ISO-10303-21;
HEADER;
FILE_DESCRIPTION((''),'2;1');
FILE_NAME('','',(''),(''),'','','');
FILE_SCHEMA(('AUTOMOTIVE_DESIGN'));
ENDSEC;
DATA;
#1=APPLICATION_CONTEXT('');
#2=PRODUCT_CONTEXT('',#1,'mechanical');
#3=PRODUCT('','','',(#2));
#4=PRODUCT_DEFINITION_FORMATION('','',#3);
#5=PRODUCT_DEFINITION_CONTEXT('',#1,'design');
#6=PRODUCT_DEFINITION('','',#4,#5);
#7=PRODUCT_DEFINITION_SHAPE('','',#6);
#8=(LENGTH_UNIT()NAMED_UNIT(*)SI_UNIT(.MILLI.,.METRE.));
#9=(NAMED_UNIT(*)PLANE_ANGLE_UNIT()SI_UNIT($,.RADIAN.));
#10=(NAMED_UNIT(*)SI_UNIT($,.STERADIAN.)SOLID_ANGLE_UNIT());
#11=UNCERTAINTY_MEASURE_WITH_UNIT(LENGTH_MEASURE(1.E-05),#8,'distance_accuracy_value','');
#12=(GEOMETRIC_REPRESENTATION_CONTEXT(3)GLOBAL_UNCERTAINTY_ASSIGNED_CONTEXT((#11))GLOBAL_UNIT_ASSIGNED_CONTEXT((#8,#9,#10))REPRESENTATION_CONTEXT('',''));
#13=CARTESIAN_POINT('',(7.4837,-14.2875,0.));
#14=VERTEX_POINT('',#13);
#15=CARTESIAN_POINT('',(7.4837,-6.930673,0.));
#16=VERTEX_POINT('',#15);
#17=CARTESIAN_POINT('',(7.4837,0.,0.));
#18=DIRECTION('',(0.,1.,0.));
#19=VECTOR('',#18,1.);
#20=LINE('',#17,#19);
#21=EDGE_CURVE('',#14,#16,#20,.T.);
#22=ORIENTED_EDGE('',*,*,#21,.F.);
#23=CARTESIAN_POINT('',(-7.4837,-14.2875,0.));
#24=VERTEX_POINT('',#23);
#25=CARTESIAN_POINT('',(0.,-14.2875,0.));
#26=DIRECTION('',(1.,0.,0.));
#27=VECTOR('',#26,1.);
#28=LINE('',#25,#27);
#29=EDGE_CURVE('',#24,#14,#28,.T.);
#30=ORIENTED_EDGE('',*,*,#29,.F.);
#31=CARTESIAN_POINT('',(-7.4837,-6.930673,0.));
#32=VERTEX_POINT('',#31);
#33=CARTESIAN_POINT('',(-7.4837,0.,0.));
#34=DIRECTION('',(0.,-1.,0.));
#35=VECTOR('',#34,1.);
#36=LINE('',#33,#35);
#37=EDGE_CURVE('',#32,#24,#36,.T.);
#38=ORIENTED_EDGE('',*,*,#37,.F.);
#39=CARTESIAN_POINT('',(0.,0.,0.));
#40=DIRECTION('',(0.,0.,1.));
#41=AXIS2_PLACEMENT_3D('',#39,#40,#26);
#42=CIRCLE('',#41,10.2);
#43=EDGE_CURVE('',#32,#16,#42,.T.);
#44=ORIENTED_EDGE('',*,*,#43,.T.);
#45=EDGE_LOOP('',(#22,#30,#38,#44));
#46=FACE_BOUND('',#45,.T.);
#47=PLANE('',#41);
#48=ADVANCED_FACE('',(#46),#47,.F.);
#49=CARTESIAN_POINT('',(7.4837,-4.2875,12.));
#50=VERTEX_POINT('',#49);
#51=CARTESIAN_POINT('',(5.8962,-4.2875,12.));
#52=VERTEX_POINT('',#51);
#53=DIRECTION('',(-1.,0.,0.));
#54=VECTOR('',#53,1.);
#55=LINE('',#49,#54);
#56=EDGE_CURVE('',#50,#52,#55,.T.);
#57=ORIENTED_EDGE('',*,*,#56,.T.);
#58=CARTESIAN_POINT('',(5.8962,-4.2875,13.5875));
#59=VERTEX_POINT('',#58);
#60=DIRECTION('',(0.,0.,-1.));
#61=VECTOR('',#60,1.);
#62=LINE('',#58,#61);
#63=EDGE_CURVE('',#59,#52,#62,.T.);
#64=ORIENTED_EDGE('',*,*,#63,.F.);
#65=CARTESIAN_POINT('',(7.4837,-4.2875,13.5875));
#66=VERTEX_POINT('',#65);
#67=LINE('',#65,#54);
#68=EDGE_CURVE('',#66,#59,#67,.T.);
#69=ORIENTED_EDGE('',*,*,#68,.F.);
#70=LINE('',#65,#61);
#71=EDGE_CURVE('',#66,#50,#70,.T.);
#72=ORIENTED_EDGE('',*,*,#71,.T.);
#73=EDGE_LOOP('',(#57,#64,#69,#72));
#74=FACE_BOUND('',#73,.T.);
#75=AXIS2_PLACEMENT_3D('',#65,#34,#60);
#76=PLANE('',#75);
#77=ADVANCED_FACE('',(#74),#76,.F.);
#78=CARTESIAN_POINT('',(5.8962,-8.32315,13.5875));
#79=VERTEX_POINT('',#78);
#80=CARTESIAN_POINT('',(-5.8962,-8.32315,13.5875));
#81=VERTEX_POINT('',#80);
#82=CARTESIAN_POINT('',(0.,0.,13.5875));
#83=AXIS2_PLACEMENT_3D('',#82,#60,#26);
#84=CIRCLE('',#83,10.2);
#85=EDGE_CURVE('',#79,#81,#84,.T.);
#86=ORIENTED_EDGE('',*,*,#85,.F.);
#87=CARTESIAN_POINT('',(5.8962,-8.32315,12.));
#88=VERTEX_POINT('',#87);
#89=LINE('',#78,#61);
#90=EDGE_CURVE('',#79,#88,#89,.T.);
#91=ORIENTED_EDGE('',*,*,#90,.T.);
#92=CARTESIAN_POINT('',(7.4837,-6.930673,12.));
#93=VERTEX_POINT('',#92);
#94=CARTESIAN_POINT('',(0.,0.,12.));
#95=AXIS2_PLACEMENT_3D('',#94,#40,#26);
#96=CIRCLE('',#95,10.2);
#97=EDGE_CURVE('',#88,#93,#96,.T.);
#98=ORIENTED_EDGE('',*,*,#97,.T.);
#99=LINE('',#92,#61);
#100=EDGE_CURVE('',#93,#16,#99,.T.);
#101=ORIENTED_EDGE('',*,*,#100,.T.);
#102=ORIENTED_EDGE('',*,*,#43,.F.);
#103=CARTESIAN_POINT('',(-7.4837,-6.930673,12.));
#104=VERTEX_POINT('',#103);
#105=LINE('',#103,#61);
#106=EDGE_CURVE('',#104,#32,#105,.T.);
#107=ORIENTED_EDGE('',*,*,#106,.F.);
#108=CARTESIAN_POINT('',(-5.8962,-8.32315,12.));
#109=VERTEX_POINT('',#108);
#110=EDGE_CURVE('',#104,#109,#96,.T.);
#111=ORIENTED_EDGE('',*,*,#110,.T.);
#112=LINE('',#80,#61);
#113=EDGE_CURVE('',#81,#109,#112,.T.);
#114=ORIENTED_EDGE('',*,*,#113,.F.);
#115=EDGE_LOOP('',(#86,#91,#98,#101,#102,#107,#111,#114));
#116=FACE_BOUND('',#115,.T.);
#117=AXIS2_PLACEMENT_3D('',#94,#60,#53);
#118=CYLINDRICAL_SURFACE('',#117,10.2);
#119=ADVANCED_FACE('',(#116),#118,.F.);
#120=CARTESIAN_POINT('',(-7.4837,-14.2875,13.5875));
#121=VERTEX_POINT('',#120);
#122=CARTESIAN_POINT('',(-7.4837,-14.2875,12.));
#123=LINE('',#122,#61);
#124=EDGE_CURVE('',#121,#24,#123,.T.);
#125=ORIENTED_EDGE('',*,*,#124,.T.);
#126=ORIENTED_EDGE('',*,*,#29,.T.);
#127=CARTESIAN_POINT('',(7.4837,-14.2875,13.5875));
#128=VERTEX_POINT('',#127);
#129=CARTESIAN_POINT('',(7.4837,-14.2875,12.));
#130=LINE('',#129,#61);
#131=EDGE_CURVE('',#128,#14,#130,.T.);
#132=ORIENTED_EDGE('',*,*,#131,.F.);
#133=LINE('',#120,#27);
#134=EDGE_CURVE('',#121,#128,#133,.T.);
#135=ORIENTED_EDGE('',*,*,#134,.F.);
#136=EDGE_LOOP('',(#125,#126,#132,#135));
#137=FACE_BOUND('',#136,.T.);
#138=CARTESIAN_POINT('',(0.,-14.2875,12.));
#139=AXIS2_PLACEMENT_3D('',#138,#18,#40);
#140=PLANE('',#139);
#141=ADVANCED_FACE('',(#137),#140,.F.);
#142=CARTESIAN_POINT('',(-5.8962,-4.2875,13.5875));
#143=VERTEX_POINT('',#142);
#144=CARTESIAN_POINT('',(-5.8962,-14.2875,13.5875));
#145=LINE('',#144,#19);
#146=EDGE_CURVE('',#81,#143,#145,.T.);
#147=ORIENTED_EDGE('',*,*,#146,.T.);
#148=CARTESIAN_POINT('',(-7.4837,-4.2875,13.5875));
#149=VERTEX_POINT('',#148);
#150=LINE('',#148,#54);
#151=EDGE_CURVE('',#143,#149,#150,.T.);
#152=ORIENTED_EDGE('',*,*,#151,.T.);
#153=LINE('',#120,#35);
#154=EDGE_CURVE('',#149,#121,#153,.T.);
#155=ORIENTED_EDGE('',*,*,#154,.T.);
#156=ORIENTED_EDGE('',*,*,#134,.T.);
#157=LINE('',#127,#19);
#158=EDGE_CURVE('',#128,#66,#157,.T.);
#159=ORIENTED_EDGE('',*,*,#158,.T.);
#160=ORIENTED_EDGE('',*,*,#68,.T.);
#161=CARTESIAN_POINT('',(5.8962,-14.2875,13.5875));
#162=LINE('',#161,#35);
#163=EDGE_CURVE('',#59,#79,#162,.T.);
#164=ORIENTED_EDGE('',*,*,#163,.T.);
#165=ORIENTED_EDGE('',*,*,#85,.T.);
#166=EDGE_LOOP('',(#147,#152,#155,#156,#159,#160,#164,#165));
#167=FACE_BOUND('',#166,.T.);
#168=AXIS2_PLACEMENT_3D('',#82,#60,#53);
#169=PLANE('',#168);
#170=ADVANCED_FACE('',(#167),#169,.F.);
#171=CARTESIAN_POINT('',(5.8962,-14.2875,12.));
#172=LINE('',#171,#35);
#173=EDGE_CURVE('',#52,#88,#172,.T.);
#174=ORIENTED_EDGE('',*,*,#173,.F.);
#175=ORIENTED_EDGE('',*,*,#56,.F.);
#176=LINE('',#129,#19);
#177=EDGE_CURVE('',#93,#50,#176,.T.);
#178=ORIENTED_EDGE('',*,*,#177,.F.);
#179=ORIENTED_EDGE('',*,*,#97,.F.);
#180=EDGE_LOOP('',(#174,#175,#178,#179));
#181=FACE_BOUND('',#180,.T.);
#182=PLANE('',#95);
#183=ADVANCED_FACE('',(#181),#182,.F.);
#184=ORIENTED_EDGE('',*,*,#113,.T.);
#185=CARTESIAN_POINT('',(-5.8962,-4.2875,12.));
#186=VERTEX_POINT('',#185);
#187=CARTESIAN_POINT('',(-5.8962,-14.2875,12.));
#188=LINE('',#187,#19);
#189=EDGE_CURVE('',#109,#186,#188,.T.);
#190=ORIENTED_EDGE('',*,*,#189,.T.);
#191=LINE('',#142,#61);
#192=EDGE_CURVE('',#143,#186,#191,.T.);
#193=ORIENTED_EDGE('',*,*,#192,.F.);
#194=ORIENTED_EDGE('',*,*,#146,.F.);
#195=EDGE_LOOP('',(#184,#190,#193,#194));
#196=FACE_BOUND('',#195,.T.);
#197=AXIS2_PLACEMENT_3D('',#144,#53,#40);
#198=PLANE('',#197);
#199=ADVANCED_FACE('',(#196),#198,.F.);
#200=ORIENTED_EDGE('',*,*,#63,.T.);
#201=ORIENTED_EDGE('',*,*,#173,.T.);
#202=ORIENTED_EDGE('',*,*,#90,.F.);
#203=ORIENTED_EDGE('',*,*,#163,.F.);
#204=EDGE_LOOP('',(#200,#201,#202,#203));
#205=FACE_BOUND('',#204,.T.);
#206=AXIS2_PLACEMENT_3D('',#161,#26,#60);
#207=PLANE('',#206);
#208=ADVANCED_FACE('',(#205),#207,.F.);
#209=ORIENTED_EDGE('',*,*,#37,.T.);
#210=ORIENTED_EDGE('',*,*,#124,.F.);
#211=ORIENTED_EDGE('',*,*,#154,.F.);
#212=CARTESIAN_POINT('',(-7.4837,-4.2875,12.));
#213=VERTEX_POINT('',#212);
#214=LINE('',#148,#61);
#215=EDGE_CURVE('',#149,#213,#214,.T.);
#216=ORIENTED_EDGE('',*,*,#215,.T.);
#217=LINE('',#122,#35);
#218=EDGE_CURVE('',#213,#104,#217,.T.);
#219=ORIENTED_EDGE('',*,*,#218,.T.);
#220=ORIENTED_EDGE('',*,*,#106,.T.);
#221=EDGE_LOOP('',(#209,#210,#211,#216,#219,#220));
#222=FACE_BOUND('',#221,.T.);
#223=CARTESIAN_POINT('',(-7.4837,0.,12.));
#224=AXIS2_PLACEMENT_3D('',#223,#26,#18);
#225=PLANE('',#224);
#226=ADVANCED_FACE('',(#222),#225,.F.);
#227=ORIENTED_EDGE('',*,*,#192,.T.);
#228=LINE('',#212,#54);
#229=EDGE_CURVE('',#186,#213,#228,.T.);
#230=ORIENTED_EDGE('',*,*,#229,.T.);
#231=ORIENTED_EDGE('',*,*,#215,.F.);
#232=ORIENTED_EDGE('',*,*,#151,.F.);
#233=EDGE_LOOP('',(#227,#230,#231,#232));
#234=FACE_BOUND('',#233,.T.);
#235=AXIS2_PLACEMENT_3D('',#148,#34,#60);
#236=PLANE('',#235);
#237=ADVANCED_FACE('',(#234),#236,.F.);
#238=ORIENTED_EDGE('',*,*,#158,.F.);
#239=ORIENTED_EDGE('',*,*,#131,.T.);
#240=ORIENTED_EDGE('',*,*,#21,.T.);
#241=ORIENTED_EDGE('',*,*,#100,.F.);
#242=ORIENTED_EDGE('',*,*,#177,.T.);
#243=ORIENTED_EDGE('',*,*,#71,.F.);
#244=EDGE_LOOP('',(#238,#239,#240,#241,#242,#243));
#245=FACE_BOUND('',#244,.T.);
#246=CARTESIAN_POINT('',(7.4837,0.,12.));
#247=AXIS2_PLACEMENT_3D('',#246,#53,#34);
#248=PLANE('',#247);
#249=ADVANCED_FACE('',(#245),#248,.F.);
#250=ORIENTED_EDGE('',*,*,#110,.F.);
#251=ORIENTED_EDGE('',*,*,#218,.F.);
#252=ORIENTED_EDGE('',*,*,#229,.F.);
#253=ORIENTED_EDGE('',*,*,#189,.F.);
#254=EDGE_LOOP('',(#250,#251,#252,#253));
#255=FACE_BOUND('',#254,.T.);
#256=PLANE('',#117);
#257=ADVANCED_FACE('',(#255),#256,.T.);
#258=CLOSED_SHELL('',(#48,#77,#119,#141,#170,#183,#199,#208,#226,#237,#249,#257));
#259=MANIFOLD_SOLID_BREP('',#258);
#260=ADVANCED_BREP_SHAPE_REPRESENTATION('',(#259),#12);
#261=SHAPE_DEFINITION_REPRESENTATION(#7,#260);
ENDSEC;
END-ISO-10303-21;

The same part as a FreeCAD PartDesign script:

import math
import FreeCAD as App
import Part
import Sketcher

V = App.Vector

doc = App.newDocument("Part")
body = doc.addObject("PartDesign::Body", "Body")

# Sketch on XY plane
sketch1 = body.newObject("Sketcher::SketchObject", "Sketch")
sketch1.AttachmentSupport = (doc.getObject("XY_Plane"), [""])
sketch1.MapMode = "FlatFace"
sketch1.addGeometry([
    Part.ArcOfCircle(Part.Circle(V(0, 0, 0), V(0, 0, 1), 10), math.radians(-137), math.radians(-43)),
    Part.LineSegment(V(-7, -7, 0), V(-7, -14, 0)),
    Part.LineSegment(V(-7, -14, 0), V(7, -14, 0)),
    Part.LineSegment(V(7, -14, 0), V(7, -7, 0)),
], False)
sketch1.addConstraint([
    Sketcher.Constraint("Coincident", 0, 1, 1, 1),
    Sketcher.Constraint("Coincident", 1, 2, 2, 1),
    Sketcher.Constraint("Coincident", 2, 2, 3, 1),
    Sketcher.Constraint("Coincident", 3, 2, 0, 2),
    Sketcher.Constraint("Vertical", 1),
    Sketcher.Constraint("Horizontal", 2),
    Sketcher.Constraint("Vertical", 3),
    Sketcher.Constraint("Coincident", 0, 3, -1, 1),
    Sketcher.Constraint("Horizontal", 0, 1, 3, 2),
    Sketcher.Constraint("Radius", 0, 10.2),
    Sketcher.Constraint("DistanceX", 2, 1, 2, 2, 14.9674),
    Sketcher.Constraint("DistanceY", 1, 2, -1, 1, 14.2875),
])
pad1 = body.newObject("PartDesign::Pad", "Pad")
pad1.Profile = sketch1
pad1.Length = 12

# Sketch on XY plane
sketch2 = body.newObject("Sketcher::SketchObject", "Sketch001")
sketch2.AttachmentSupport = (doc.getObject("XY_Plane"), [""])
sketch2.MapMode = "FlatFace"
sketch2.AttachmentOffset = App.Placement(V(0, 0, 12), App.Rotation())
sketch2.addGeometry([
    Part.LineSegment(V(-7.5, -4.3, 0), V(-7.5, -14.3, 0)),  # 0
    Part.LineSegment(V(-7.5, -14.3, 0), V(-5.9, -14.3, 0)),  # 1
    Part.LineSegment(V(-5.9, -14.3, 0), V(-5.9, -4.3, 0)),  # 2
    Part.LineSegment(V(-5.9, -4.3, 0), V(-7.5, -4.3, 0)),  # 3
    Part.LineSegment(V(5.9, -4.3, 0), V(5.9, -14.3, 0)),  # 4
    Part.LineSegment(V(5.9, -14.3, 0), V(7.5, -14.3, 0)),  # 5
    Part.LineSegment(V(7.5, -14.3, 0), V(7.5, -4.3, 0)),  # 6
    Part.LineSegment(V(7.5, -4.3, 0), V(5.9, -4.3, 0)),  # 7
], False)
sketch2.addConstraint([
    Sketcher.Constraint("Coincident", 0, 2, 1, 1),
    Sketcher.Constraint("Coincident", 1, 2, 2, 1),
    Sketcher.Constraint("Coincident", 2, 2, 3, 1),
    Sketcher.Constraint("Coincident", 3, 2, 0, 1),
    Sketcher.Constraint("Coincident", 4, 2, 5, 1),
    Sketcher.Constraint("Coincident", 5, 2, 6, 1),
    Sketcher.Constraint("Coincident", 6, 2, 7, 1),
    Sketcher.Constraint("Coincident", 7, 2, 4, 1),
    Sketcher.Constraint("Vertical", 0),
    Sketcher.Constraint("Horizontal", 1),
    Sketcher.Constraint("Vertical", 2),
    Sketcher.Constraint("Horizontal", 3),
    Sketcher.Constraint("Vertical", 4),
    Sketcher.Constraint("Horizontal", 5),
    Sketcher.Constraint("Vertical", 6),
    Sketcher.Constraint("Horizontal", 7),
    Sketcher.Constraint("Symmetric", 1, 2, 4, 2, -2),
    Sketcher.Constraint("Symmetric", 3, 2, 6, 2, -2),
    Sketcher.Constraint("DistanceY", 0, 2, 0, 1, 10.0),
    Sketcher.Constraint("DistanceX", 1, 1, 1, 2, 1.5875),
    Sketcher.Constraint("DistanceX", 0, 2, -1, 1, 7.4837),
    Sketcher.Constraint("DistanceY", 0, 2, -1, 1, 14.2875),
])
pad2 = body.newObject("PartDesign::Pad", "Pad001")
pad2.Profile = sketch2
pad2.Length = 1.5875

# Sketch on XY plane
sketch3 = body.newObject("Sketcher::SketchObject", "Sketch002")
sketch3.AttachmentSupport = (doc.getObject("XY_Plane"), [""])
sketch3.MapMode = "FlatFace"
sketch3.AttachmentOffset = App.Placement(V(0, 0, 12), App.Rotation())
sketch3.addGeometry([
    Part.LineSegment(V(-6, -8, 0), V(-6, -14, 0)),
    Part.LineSegment(V(-6, -14, 0), V(6, -14, 0)),
    Part.LineSegment(V(6, -14, 0), V(6, -8, 0)),
    Part.ArcOfCircle(Part.Circle(V(0, 0, 0), V(0, 0, 1), 10), math.radians(-125), math.radians(-55)),
], False)
sketch3.addConstraint([
    Sketcher.Constraint("Coincident", 0, 2, 1, 1),
    Sketcher.Constraint("Coincident", 1, 2, 2, 1),
    Sketcher.Constraint("Coincident", 2, 2, 3, 2),
    Sketcher.Constraint("Coincident", 3, 1, 0, 1),
    Sketcher.Constraint("Vertical", 0),
    Sketcher.Constraint("Horizontal", 1),
    Sketcher.Constraint("Vertical", 2),
    Sketcher.Constraint("Coincident", 3, 3, -1, 1),
    Sketcher.Constraint("Horizontal", 2, 2, 3, 1),
    Sketcher.Constraint("Radius", 3, 10.2),
    Sketcher.Constraint("DistanceX", 1, 1, 1, 2, 11.7924),
    Sketcher.Constraint("DistanceY", 0, 2, 0, 1, 5.96435),
])
pad3 = body.newObject("PartDesign::Pad", "Pad002")
pad3.Profile = sketch3
pad3.Length = 1.5875

doc.recompute()
